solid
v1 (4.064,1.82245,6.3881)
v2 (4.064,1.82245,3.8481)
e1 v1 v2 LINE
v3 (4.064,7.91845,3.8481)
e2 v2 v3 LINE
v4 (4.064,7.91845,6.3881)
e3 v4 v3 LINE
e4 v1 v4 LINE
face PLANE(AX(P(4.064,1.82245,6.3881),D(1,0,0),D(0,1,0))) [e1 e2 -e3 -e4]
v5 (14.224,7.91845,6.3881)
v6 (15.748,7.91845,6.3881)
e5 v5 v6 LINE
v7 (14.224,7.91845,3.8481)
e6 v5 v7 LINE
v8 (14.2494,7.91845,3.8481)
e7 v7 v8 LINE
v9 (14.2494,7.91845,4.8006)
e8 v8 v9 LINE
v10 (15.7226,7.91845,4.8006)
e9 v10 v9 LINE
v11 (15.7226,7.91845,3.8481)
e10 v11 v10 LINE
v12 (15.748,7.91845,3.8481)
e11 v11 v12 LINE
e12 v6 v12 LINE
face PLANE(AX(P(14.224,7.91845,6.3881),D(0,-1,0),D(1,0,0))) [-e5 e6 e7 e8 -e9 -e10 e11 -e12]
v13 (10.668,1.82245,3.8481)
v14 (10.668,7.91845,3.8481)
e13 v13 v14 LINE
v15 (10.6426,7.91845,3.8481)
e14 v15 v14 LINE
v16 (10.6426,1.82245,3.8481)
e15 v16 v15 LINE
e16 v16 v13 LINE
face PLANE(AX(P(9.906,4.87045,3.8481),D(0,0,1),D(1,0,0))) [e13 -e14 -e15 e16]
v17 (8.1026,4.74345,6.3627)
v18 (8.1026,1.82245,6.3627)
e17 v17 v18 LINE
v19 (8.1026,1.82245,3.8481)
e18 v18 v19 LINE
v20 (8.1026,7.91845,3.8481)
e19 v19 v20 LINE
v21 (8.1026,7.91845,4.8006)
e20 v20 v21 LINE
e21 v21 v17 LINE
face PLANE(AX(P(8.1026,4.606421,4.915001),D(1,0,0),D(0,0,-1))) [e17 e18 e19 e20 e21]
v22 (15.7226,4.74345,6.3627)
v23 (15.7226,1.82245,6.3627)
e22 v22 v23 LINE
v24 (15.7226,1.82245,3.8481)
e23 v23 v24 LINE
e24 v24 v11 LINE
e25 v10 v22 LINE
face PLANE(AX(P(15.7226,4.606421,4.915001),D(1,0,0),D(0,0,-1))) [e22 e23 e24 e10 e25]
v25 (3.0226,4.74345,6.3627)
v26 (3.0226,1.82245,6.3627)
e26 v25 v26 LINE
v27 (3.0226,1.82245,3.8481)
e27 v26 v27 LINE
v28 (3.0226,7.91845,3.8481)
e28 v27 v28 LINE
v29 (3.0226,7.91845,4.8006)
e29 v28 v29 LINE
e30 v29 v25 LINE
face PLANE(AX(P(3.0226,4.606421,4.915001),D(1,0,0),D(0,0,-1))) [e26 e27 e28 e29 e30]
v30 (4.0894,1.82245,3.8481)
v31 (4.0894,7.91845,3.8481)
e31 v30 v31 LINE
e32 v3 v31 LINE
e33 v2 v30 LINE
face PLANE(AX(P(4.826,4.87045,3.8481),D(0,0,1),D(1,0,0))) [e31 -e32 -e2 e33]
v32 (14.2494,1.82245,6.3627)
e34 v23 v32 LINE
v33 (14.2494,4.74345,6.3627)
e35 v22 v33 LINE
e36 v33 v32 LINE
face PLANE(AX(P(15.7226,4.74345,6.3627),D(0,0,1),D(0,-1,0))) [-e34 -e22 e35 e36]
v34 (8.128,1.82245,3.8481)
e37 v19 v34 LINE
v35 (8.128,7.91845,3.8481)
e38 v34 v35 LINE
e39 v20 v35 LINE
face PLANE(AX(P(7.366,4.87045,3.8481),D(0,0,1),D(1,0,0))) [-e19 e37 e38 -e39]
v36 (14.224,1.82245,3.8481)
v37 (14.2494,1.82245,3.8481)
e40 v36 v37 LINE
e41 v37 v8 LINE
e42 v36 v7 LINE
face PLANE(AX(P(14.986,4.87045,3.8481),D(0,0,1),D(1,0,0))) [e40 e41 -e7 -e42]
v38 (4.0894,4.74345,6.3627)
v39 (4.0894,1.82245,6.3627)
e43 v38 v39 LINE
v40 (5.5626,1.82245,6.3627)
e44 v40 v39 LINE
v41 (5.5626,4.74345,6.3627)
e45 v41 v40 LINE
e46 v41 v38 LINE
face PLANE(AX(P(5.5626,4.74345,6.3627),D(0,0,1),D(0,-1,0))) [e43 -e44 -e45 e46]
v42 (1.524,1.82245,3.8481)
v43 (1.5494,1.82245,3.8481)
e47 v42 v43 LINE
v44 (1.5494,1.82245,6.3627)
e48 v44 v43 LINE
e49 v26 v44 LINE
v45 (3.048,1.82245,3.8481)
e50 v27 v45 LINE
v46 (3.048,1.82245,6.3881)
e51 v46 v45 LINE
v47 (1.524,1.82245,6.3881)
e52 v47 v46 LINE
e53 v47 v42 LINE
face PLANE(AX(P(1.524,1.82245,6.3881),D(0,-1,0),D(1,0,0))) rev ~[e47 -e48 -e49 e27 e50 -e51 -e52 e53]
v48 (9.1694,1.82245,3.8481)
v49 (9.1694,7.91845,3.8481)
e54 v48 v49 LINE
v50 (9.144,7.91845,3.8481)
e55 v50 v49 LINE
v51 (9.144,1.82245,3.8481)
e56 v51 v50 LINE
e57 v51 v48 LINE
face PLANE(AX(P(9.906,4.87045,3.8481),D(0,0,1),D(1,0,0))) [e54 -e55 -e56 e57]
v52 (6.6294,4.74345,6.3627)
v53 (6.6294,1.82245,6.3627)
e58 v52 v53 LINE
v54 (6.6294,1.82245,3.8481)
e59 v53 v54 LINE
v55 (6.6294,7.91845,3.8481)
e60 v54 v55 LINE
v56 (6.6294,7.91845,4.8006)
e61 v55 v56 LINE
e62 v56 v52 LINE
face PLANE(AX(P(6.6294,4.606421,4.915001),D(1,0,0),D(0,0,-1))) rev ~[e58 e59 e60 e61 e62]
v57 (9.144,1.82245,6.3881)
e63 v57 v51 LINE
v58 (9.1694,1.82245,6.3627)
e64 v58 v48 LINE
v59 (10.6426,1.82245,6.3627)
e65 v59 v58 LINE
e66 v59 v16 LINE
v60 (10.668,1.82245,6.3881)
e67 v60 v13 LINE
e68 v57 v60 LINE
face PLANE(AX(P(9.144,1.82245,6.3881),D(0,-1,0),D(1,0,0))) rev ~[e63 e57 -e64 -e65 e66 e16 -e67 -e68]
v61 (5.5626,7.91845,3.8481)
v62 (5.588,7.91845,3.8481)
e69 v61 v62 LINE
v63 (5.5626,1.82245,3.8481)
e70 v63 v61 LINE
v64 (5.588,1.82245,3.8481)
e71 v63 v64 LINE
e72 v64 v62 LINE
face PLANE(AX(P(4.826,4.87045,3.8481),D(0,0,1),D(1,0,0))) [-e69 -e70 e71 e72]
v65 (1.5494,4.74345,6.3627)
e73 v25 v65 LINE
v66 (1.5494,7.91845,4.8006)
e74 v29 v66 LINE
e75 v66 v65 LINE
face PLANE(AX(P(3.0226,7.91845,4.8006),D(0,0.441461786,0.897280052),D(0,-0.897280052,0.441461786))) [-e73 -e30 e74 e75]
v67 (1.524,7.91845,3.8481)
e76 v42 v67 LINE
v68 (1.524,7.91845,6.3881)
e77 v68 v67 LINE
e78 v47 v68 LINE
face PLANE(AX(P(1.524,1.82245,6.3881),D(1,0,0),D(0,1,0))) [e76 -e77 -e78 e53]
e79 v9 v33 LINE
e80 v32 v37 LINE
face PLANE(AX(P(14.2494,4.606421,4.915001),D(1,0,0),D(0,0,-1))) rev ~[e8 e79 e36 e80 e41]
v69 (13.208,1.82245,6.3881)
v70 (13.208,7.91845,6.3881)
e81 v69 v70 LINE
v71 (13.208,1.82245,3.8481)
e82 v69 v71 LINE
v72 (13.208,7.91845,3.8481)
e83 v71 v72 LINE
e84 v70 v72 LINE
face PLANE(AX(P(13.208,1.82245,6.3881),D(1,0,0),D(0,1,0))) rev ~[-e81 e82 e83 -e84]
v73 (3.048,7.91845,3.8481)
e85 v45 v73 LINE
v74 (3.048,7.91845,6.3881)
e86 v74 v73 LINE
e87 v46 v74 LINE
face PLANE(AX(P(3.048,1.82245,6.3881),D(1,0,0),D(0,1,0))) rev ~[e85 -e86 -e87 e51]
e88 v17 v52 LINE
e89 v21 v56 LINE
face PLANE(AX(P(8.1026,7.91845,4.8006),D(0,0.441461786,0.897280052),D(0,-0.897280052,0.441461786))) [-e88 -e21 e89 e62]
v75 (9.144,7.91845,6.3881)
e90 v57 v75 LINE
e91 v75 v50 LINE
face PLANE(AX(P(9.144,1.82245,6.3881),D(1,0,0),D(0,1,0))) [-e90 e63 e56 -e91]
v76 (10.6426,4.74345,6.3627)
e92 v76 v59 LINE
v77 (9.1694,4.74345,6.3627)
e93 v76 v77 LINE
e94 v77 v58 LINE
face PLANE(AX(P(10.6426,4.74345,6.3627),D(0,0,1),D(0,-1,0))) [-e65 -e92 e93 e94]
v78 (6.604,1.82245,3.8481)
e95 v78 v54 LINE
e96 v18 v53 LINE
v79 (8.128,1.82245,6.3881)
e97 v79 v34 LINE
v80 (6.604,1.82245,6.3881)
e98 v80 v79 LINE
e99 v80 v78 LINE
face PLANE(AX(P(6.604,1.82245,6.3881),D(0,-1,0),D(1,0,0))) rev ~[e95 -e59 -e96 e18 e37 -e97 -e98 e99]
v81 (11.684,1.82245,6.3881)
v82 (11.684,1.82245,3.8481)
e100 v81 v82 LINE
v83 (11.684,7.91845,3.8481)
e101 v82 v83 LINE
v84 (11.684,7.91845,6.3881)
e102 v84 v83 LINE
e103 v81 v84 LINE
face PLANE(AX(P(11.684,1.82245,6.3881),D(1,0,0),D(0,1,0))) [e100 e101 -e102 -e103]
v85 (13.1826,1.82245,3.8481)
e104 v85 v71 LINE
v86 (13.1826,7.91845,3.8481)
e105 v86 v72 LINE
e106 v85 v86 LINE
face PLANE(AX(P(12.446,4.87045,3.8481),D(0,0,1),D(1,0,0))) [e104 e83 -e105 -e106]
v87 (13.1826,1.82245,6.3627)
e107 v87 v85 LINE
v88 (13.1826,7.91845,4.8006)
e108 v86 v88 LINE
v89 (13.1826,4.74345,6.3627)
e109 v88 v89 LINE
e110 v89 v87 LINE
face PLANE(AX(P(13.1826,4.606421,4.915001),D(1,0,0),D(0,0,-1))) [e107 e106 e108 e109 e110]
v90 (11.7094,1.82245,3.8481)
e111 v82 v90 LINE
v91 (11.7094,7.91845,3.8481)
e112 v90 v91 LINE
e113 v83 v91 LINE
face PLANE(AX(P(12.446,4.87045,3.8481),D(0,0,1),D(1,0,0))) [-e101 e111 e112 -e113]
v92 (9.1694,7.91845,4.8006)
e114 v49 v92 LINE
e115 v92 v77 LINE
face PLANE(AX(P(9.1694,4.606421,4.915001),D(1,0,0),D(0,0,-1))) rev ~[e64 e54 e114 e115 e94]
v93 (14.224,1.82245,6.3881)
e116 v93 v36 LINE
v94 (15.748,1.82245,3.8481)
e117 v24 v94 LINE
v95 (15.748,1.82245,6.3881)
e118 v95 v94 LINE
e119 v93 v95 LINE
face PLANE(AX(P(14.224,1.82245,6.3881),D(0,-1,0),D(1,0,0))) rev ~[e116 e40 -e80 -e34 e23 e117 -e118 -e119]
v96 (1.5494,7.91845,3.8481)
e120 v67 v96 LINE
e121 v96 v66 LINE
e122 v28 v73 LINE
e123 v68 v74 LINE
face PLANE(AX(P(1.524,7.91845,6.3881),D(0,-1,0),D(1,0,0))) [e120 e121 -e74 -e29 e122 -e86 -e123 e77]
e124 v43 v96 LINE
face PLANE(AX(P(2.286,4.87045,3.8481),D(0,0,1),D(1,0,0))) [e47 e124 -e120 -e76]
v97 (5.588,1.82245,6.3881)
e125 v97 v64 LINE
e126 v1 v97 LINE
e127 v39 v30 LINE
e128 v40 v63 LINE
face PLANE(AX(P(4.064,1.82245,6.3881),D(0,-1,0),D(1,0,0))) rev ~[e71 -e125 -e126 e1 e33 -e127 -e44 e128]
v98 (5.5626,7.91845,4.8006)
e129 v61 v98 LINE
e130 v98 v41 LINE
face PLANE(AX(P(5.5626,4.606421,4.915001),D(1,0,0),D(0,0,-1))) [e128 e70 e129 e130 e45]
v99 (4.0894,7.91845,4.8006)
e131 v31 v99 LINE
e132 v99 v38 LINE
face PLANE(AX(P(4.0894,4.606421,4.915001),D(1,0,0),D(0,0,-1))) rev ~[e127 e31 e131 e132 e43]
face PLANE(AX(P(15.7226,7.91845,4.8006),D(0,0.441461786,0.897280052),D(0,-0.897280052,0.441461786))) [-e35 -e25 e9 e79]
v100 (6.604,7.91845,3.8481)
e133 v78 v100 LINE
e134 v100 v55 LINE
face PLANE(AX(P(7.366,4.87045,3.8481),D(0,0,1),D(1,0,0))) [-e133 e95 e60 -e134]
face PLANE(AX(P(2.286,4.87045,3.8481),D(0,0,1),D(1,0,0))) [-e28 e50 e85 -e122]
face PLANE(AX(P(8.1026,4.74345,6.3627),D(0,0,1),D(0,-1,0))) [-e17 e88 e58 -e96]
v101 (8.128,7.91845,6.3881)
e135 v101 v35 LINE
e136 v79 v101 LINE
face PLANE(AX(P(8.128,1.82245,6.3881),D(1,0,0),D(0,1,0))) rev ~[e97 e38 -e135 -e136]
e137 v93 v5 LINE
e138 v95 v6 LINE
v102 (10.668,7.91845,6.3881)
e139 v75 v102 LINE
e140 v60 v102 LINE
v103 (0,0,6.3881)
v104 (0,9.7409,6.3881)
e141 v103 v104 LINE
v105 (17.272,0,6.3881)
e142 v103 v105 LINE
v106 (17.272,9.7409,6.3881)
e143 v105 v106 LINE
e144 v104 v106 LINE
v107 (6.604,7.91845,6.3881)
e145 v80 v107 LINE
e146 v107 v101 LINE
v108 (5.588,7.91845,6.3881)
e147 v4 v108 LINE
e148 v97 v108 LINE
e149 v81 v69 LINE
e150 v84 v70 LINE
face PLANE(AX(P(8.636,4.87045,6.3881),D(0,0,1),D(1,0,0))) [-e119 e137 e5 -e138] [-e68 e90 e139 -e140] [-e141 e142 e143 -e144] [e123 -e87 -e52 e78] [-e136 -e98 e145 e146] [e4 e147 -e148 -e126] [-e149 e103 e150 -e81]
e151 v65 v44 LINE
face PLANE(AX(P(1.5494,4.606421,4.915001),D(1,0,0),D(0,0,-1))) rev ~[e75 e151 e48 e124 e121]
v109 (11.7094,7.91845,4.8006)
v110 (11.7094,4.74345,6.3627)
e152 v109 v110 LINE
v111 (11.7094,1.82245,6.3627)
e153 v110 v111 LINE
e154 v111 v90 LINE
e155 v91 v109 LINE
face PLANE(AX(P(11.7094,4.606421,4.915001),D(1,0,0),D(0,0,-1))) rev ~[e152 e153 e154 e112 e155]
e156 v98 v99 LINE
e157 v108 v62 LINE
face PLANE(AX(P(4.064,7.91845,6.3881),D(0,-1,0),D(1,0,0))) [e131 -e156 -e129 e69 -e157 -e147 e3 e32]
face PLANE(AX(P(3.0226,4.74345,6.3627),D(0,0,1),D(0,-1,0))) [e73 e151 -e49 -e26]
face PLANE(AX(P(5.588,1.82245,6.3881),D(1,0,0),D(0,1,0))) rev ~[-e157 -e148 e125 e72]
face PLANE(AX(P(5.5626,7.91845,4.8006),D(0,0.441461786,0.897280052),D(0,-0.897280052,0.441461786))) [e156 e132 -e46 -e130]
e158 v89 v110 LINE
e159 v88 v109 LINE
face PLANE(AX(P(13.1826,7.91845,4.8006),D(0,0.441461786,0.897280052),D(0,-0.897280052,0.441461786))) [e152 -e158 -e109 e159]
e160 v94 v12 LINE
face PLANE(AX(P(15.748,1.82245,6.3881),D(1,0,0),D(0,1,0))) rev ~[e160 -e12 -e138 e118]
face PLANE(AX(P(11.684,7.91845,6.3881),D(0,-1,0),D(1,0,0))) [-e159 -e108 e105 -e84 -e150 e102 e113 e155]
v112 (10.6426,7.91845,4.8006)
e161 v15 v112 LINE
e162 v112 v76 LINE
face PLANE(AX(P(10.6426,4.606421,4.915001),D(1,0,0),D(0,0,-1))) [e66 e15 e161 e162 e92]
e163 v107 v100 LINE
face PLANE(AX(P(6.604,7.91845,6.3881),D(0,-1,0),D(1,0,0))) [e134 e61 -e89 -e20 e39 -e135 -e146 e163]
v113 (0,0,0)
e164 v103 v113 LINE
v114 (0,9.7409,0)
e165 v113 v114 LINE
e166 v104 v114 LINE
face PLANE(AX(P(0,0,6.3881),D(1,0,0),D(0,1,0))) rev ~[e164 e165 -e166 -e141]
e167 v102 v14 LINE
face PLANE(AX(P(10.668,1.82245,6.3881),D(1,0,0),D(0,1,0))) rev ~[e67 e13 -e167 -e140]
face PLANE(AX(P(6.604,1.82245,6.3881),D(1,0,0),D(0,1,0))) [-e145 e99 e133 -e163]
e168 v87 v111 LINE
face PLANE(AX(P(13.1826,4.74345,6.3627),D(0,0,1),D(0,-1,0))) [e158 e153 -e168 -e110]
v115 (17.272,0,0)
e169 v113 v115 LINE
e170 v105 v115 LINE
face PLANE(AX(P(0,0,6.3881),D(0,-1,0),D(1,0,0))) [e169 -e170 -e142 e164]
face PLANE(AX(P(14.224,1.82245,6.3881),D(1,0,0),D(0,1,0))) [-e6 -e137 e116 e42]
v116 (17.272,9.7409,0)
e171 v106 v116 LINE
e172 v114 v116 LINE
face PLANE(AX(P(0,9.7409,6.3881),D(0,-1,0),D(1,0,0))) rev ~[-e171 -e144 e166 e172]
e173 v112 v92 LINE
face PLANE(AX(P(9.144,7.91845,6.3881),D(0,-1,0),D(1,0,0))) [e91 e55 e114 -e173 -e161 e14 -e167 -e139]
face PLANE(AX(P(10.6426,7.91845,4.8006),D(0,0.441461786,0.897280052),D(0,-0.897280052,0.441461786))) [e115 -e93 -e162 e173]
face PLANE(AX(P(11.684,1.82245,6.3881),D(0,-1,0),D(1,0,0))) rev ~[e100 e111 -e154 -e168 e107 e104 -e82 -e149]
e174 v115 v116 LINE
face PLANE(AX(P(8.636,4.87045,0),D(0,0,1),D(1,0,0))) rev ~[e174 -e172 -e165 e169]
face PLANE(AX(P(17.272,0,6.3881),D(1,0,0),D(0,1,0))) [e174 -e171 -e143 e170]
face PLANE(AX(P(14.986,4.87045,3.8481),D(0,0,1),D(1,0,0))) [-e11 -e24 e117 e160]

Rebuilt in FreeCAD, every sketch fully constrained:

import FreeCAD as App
import Part
import Sketcher
Q = App.Units.Quantity


def add_polygon(sketch, points):
    """Adds a closed chain of lines whose ends are joined by coincident constraints."""
    first, n = sketch.GeometryCount, len(points)
    for a, b in zip(points, points[1:] + points[:1]):
        sketch.addGeometry(Part.LineSegment(App.Vector(*a, 0), App.Vector(*b, 0)), False)
    for i in range(n):
        sketch.addConstraint(Sketcher.Constraint("Coincident", first + i, 2, first + (i + 1) % n, 1))

doc = App.newDocument("Part")
body = doc.addObject("PartDesign::Body", "Body")

# Sketch on XY plane
sketch1 = body.newObject("Sketcher::SketchObject", "Sketch")
sketch1.AttachmentSupport = (doc.getObject("XY_Plane"), [""])
sketch1.MapMode = "FlatFace"
sketch1.AttachmentOffset = App.Placement(App.Vector(0, 0, 0.2515 * 25.4), App.Rotation())
add_polygon(sketch1, [(0, 10), (0, 0), (17, 0), (17, 10)])  # lines 0-3
sketch1.addConstraint(Sketcher.Constraint("Vertical", 0))
sketch1.addConstraint(Sketcher.Constraint("Horizontal", 1))
sketch1.addConstraint(Sketcher.Constraint("Vertical", 2))
sketch1.addConstraint(Sketcher.Constraint("Horizontal", 3))
sketch1.addConstraint(Sketcher.Constraint("Coincident", 0, 2, -1, 1))
sketch1.addConstraint(Sketcher.Constraint("DistanceX", 1, 1, 1, 2, Q("0.68 in")))
sketch1.addConstraint(Sketcher.Constraint("DistanceY", 0, 2, 0, 1, Q("0.3835 in")))
pad1 = body.newObject("PartDesign::Pad", "Pad")
pad1.Profile = sketch1
pad1.Length = Q("0.2515 in")
pad1.Reversed = True

# Sketch on XY plane
sketch2 = body.newObject("Sketcher::SketchObject", "Sketch001")
sketch2.AttachmentSupport = (doc.getObject("XY_Plane"), [""])
sketch2.MapMode = "FlatFace"
sketch2.AttachmentOffset = App.Placement(App.Vector(0, 0, 0.2515 * 25.4), App.Rotation())
add_polygon(sketch2, [(1.5, 7.9), (1.5, 1.8), (3, 1.8), (3, 7.9)])  # lines 0-3
sketch2.addConstraint(Sketcher.Constraint("Vertical", 0))
sketch2.addConstraint(Sketcher.Constraint("Horizontal", 1))
sketch2.addConstraint(Sketcher.Constraint("Vertical", 2))
sketch2.addConstraint(Sketcher.Constraint("Horizontal", 3))
sketch2.addConstraint(Sketcher.Constraint("DistanceX", 1, 1, 1, 2, Q("0.06 in")))
sketch2.addConstraint(Sketcher.Constraint("DistanceY", 0, 2, 0, 1, Q("0.24 in")))
sketch2.addConstraint(Sketcher.Constraint("DistanceX", -1, 1, 0, 2, Q("0.06 in")))
sketch2.addConstraint(Sketcher.Constraint("DistanceY", -1, 1, 0, 2, Q("1.82245 mm")))
pocket1 = body.newObject("PartDesign::Pocket", "Pocket")
pocket1.Profile = sketch2
pocket1.Length = Q("0.1 in")
doc.recompute()

linearpattern = body.newObject("PartDesign::LinearPattern", "LinearPattern")
linearpattern.Originals = [pocket1]
linearpattern.Direction = (doc.getObject("X_Axis"), [""])
linearpattern.Mode = "offset"
linearpattern.Offset = Q("0.1 in")
linearpattern.Occurrences = 6
body.Tip = linearpattern

# Sketch on YZ plane
sketch3 = body.newObject("Sketcher::SketchObject", "Sketch002")
sketch3.AttachmentSupport = (doc.getObject("YZ_Plane"), [""])
sketch3.MapMode = "FlatFace"
sketch3.AttachmentOffset = App.Placement(App.Vector(0, 0, 0.119 * 25.4), App.Rotation())
add_polygon(sketch3, [(1.8, 6.4), (1.8, 3.8), (7.9, 3.8), (7.9, 4.8), (4.7, 6.4)])  # lines 0-4
sketch3.addConstraint(Sketcher.Constraint("Vertical", 0))
sketch3.addConstraint(Sketcher.Constraint("Horizontal", 1))
sketch3.addConstraint(Sketcher.Constraint("Vertical", 2))
sketch3.addConstraint(Sketcher.Constraint("Horizontal", 4))
sketch3.addConstraint(Sketcher.Constraint("DistanceX", 1, 1, 1, 2, Q("0.24 in")))
sketch3.addConstraint(Sketcher.Constraint("DistanceX", 4, 2, 4, 1, Q("0.115 in")))
sketch3.addConstraint(Sketcher.Constraint("DistanceY", 0, 2, 0, 1, Q("0.099 in")))
sketch3.addConstraint(Sketcher.Constraint("DistanceY", 2, 1, 2, 2, Q("0.0375 in")))
sketch3.addConstraint(Sketcher.Constraint("DistanceY", -1, 1, 2, 2, Q("0.189 in")))
sketch3.addConstraint(Sketcher.Constraint("DistanceX", -1, 1, 0, 2, Q("1.82245 mm")))
pad2 = body.newObject("PartDesign::Pad", "Pad001")
pad2.Profile = sketch3
pad2.Length = Q("0.058 in")
pad2.Reversed = True
doc.recompute()

linearpattern2 = body.newObject("PartDesign::LinearPattern", "LinearPattern001")
linearpattern2.Originals = [pad2]
linearpattern2.Direction = (doc.getObject("X_Axis"), [""])
linearpattern2.Mode = "offset"
linearpattern2.Offset = Q("0.1 in")
linearpattern2.Occurrences = 6
body.Tip = linearpattern2

doc.recompute()
